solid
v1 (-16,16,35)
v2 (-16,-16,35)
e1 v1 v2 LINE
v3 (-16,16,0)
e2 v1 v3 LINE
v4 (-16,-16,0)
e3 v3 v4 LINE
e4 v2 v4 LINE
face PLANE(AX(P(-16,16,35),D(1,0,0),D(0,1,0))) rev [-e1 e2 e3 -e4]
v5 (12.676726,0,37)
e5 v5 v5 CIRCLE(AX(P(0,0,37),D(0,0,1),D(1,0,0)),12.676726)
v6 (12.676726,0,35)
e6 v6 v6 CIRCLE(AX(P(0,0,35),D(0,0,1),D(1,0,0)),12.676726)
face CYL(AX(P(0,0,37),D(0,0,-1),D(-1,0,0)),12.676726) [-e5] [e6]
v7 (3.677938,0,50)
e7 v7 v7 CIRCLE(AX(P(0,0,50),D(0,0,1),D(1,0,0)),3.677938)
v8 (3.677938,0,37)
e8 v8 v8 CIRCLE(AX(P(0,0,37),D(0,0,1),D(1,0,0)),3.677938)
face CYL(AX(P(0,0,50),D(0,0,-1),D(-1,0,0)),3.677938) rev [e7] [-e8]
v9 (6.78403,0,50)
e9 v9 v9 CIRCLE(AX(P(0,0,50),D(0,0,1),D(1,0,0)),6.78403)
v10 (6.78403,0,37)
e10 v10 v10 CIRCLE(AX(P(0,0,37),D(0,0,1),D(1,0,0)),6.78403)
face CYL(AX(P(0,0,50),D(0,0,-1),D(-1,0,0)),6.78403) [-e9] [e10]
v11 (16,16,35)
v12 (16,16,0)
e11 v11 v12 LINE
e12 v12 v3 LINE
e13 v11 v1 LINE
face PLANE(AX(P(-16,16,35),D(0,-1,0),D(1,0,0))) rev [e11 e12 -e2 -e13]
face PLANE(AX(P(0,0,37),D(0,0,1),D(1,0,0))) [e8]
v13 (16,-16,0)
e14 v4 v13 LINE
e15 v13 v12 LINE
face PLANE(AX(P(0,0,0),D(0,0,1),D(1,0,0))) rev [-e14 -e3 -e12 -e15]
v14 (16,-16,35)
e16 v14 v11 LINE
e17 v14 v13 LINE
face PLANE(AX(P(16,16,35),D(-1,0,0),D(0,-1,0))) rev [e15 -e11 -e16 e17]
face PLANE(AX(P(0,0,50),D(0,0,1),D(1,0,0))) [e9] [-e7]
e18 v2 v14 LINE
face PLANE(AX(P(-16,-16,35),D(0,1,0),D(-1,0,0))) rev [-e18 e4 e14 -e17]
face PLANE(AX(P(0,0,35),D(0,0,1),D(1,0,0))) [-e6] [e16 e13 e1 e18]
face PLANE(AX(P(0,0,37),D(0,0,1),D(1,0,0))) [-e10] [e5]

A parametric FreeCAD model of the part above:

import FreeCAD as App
import Part
import Sketcher

V = App.Vector
Q = App.Units.Quantity

doc = App.newDocument("Part")
body = doc.addObject("PartDesign::Body", "Body")

sketch1 = doc.addObject("Sketcher::SketchObject", "Sketch")
body.addObject(sketch1)
sketch1.AttachmentSupport = (doc.XY_Plane, [""])
sketch1.MapMode = "FlatFace"
sketch1.addGeometry([
    Part.LineSegment(V(-16, 16, 0), V(-16, -16, 0)),
    Part.LineSegment(V(-16, -16, 0), V(16, -16, 0)),
    Part.LineSegment(V(16, -16, 0), V(16, 16, 0)),
    Part.LineSegment(V(16, 16, 0), V(-16, 16, 0)),
], False)
sketch1.addConstraint([
    Sketcher.Constraint("Coincident", 0, 2, 1, 1),
    Sketcher.Constraint("Coincident", 1, 2, 2, 1),
    Sketcher.Constraint("Coincident", 2, 2, 3, 1),
    Sketcher.Constraint("Coincident", 3, 2, 0, 1),
    Sketcher.Constraint("Vertical", 0),
    Sketcher.Constraint("Horizontal", 1),
    Sketcher.Constraint("Vertical", 2),
    Sketcher.Constraint("Horizontal", 3),
    Sketcher.Constraint("Symmetric", 0, 2, 2, 2, -1, 1),
    Sketcher.Constraint("Equal", 3, 0),
    Sketcher.Constraint("DistanceX", 1, 1, 1, 2, Q("32 mm")),
])
pad1 = doc.addObject("PartDesign::Pad", "Pad")
body.addObject(pad1)
pad1.Profile = sketch1
pad1.Length = 35

sketch2 = doc.addObject("Sketcher::SketchObject", "Sketch001")
body.addObject(sketch2)
sketch2.AttachmentSupport = (doc.XY_Plane, [""])
sketch2.MapMode = "FlatFace"
sketch2.AttachmentOffset = App.Placement(V(0, 0, 35), App.Rotation())
sketch2.addGeometry([
    Part.Circle(V(0, 0, 0), V(0, 0, 1), 6.8),
    Part.Circle(V(0, 0, 0), V(0, 0, 1), 3.7),
], False)
sketch2.addConstraint([
    Sketcher.Constraint("Coincident", 0, 3, -1, 1),
    Sketcher.Constraint("Coincident", 1, 3, -1, 1),
    Sketcher.Constraint("Diameter", 0, Q("13.568059 mm")),
    Sketcher.Constraint("Diameter", 1, Q("7.355875 mm")),
])
pad2 = doc.addObject("PartDesign::Pad", "Pad001")
body.addObject(pad2)
pad2.Profile = sketch2
pad2.Length = 15

sketch3 = doc.addObject("Sketcher::SketchObject", "Sketch002")
body.addObject(sketch3)
sketch3.AttachmentSupport = (doc.XY_Plane, [""])
sketch3.MapMode = "FlatFace"
sketch3.AttachmentOffset = App.Placement(V(0, 0, 35), App.Rotation())
sketch3.addGeometry(Part.Circle(V(0, 0, 0), V(0, 0, 1), 13), False)
sketch3.addConstraint([
    Sketcher.Constraint("Coincident", 0, 3, -1, 1),
    Sketcher.Constraint("Diameter", 0, Q("25.353452 mm")),
])
pad3 = doc.addObject("PartDesign::Pad", "Pad002")
body.addObject(pad3)
pad3.Profile = sketch3
pad3.Length = 2

doc.recompute()
